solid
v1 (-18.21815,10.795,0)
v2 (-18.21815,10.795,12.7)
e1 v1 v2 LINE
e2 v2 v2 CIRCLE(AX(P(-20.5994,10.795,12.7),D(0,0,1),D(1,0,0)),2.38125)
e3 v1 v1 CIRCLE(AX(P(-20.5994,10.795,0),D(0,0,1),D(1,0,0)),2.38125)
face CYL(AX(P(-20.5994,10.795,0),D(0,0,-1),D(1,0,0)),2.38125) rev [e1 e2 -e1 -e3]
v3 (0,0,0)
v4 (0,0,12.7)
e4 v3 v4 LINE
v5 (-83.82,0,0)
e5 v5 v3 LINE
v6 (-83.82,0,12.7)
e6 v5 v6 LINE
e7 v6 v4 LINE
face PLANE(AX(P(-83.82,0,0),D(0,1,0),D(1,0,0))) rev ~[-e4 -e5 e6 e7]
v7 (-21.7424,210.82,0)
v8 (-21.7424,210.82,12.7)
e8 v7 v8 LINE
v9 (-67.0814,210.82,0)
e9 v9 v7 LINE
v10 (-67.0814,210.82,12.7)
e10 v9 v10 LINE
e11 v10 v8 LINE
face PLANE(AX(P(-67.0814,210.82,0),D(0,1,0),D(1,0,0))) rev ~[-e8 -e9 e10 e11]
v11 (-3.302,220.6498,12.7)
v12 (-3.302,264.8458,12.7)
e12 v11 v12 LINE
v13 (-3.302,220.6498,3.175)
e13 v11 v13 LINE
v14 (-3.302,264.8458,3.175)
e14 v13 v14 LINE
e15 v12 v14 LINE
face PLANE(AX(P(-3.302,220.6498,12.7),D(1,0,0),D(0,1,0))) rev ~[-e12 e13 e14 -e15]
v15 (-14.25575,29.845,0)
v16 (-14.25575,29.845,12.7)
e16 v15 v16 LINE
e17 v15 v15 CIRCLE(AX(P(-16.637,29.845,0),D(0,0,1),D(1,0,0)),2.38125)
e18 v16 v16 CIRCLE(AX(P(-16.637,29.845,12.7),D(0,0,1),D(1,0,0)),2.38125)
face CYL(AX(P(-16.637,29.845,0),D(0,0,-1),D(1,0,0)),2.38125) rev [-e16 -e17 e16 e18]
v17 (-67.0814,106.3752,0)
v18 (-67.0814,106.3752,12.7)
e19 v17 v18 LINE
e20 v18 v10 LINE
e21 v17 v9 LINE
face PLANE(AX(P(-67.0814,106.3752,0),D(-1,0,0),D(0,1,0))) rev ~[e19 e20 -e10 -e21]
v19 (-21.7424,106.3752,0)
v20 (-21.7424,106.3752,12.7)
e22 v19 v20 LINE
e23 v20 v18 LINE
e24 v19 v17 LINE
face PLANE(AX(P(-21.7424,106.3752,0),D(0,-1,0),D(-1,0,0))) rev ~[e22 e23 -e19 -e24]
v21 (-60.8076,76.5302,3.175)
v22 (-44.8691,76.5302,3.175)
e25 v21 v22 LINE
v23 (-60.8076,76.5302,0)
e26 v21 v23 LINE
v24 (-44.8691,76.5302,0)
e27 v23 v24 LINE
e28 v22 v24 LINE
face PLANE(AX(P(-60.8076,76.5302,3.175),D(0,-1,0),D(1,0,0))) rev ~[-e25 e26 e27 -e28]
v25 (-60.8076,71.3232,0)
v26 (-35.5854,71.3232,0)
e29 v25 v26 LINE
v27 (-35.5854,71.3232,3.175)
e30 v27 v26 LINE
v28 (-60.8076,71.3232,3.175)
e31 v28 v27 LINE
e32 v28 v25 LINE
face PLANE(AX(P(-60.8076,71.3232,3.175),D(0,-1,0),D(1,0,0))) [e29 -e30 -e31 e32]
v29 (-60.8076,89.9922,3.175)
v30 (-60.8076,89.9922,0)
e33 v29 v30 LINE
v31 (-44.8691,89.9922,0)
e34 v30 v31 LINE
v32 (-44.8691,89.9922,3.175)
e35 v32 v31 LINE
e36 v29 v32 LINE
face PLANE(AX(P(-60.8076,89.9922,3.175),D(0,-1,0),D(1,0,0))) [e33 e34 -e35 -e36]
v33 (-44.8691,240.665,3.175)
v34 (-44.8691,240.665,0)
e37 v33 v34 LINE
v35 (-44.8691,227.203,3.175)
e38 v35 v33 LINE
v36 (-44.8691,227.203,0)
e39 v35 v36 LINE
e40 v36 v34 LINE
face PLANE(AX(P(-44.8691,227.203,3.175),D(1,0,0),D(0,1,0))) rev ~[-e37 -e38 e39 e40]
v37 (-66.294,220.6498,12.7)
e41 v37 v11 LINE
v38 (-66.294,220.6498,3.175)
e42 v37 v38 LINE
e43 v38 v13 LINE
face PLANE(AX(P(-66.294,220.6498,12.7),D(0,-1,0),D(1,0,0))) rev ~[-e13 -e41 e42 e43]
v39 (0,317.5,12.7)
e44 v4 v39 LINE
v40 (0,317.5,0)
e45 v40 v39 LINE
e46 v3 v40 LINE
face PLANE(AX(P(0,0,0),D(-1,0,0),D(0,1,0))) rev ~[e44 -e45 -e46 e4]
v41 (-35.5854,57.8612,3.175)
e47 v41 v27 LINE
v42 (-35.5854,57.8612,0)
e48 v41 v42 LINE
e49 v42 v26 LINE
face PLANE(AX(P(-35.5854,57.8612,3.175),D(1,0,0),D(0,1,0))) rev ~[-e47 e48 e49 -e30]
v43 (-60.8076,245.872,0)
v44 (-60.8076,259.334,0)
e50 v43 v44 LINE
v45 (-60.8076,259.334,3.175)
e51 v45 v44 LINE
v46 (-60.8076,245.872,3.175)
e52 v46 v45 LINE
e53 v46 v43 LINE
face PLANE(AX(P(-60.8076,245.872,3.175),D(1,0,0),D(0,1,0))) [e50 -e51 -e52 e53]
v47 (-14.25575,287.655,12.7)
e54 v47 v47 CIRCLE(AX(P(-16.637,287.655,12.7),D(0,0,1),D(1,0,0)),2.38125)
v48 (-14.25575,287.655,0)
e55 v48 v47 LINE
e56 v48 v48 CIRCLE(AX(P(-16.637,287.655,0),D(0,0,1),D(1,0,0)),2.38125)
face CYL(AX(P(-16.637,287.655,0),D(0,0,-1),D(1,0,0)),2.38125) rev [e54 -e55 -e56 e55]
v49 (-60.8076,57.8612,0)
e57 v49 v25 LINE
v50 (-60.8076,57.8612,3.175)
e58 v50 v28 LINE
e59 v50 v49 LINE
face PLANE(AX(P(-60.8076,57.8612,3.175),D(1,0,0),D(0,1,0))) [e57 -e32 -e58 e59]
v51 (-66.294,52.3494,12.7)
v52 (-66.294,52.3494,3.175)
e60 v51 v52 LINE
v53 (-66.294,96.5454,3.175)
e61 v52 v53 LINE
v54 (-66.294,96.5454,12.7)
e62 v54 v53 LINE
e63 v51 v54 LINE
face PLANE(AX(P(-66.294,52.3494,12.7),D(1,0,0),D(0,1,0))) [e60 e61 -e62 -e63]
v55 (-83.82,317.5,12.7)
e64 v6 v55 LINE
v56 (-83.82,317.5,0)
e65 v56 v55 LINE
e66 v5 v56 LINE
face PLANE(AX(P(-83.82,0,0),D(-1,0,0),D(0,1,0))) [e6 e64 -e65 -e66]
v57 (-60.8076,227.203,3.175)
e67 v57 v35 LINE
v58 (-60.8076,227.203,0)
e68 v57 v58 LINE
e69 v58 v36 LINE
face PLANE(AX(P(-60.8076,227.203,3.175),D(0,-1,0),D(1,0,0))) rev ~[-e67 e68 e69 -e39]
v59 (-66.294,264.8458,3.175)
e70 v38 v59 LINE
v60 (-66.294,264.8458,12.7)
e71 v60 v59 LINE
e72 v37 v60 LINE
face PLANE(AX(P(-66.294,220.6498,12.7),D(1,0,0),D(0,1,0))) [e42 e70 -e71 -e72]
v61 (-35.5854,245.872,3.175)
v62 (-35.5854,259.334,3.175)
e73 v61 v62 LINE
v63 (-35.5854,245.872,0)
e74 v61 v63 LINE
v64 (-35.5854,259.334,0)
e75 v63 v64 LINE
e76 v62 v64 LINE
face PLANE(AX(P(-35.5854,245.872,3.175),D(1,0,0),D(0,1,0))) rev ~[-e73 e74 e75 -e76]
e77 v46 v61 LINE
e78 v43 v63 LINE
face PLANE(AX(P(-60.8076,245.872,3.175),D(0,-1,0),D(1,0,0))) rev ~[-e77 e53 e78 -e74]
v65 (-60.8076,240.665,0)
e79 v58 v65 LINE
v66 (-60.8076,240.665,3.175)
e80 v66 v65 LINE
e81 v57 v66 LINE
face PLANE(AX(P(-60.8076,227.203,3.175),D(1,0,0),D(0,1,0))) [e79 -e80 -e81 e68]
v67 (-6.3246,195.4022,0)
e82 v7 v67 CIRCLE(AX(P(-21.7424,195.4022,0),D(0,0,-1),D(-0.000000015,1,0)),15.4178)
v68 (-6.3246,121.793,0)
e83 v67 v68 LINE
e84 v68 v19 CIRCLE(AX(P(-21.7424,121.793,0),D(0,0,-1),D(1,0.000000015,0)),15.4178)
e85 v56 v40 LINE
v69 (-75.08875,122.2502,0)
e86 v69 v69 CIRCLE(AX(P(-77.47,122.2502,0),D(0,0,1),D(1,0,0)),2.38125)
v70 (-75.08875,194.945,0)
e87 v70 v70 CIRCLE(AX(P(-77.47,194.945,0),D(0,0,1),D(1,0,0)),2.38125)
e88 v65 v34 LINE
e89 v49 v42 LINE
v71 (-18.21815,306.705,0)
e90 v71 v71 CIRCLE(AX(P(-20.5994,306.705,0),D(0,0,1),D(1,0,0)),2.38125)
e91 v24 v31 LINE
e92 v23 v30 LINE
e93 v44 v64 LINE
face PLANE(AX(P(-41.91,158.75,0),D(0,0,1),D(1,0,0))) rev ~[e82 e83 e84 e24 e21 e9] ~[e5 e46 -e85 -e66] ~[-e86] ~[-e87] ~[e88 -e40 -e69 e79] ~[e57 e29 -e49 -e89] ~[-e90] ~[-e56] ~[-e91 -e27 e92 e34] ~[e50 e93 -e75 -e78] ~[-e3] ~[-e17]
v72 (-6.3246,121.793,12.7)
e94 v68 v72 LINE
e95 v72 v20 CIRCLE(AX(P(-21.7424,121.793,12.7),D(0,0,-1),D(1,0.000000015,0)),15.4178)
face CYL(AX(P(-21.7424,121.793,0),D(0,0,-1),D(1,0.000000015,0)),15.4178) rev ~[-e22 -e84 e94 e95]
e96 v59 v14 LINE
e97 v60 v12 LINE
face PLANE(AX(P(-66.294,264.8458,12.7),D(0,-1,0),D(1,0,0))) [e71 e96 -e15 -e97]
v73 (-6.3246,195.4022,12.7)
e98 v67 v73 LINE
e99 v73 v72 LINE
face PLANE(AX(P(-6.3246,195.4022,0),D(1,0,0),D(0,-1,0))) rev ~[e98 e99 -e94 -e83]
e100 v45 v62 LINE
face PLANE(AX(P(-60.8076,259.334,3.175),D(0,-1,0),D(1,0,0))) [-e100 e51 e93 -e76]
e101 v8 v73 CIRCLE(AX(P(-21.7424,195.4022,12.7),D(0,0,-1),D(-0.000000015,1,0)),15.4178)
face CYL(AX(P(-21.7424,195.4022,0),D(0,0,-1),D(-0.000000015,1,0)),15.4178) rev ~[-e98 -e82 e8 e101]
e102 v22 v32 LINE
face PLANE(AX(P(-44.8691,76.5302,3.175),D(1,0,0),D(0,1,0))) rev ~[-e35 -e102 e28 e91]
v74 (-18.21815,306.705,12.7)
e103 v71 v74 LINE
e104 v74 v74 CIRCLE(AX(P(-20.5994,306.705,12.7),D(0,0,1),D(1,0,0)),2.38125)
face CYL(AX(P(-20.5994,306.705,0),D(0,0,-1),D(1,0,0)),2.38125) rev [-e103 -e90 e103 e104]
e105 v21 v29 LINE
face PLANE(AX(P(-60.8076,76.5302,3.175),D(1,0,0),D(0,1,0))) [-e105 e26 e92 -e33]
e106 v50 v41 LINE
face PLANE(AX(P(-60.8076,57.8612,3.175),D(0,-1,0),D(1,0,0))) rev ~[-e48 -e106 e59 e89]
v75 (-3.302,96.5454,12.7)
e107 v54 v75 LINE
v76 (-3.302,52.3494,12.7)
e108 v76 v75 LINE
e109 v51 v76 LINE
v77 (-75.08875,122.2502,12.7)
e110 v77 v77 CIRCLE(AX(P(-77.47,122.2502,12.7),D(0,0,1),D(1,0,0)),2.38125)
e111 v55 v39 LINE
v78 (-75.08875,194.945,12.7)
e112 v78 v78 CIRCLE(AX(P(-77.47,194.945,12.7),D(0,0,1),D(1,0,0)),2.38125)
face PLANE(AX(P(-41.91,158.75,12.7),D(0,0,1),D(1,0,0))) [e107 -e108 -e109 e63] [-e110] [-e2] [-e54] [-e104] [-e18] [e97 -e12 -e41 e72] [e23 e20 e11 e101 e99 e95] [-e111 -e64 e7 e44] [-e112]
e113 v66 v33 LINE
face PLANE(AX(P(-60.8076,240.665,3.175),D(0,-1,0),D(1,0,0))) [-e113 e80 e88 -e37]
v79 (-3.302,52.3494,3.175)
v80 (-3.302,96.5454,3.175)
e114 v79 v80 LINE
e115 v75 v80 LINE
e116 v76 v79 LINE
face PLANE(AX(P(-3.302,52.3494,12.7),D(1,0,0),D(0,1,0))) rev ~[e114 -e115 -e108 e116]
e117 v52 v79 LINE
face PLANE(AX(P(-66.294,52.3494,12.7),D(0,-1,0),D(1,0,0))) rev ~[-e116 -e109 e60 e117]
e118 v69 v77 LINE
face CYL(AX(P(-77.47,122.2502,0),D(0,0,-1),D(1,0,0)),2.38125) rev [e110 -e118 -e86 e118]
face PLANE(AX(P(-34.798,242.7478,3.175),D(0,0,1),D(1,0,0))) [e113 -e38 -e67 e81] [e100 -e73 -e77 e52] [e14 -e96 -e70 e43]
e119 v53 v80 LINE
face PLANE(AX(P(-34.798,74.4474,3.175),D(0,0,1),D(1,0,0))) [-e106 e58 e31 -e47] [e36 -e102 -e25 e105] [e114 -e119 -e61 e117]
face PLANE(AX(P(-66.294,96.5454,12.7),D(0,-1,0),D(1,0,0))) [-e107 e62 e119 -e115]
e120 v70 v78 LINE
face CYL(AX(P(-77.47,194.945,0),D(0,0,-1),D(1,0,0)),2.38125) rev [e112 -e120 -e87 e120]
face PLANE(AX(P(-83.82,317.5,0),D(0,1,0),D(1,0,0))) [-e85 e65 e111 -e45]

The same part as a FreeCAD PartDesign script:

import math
import FreeCAD as App
import Part
import Sketcher
Q = App.Units.Quantity


def add_polygon(sketch, points):
    """Adds a closed chain of lines whose ends are joined by coincident constraints."""
    first, n = sketch.GeometryCount, len(points)
    for a, b in zip(points, points[1:] + points[:1]):
        sketch.addGeometry(Part.LineSegment(App.Vector(*a, 0), App.Vector(*b, 0)), False)
    for i in range(n):
        sketch.addConstraint(Sketcher.Constraint("Coincident", first + i, 2, first + (i + 1) % n, 1))

doc = App.newDocument("Part")
params = doc.addObject("Spreadsheet::Sheet", "Params")
for row, (alias, value) in enumerate([
    ("sketch1_diameter", "0.1875 in"),
    ("sketch1_width", "3.3 in"),
    ("sketch1_height", "12.5 in"),
    ("sketch1_radius", "0.607 in"),
    ("sketch1_width2", "1.785 in"),
    ("pad1_length", "0.5 in"),
    ("sketch2_width", "2.48 in"),
    ("sketch2_height", "1.74 in"),
    ("pocket1_length", "0.375 in"),
    ("sketch3_height", "0.53 in"),
    ("sketch3_width", "0.993 in"),
], start=1):
    params.set(f"A{row}", alias)
    params.set(f"B{row}", "=" + value)
    params.setAlias(f"B{row}", alias)

body = doc.addObject("PartDesign::Body", "Body")

sketch1 = body.newObject("Sketcher::SketchObject", "Sketch")
sketch1.AttachmentSupport = (doc.getObject("XY_Plane"), [""])
sketch1.MapMode = "FlatFace"
add_polygon(sketch1, [(-83.82, 317.5), (-83.82, 0), (0, 0), (0, 317.5)])
sketch1.addGeometry(Part.Circle(App.Vector(-77.47, 122.2502, 0), App.Vector(0, 0, 1), 2.38125), False)
sketch1.addGeometry(Part.Circle(App.Vector(-20.5994, 10.795, 0), App.Vector(0, 0, 1), 2.38125), False)
sketch1.addGeometry(Part.Circle(App.Vector(-16.637, 29.845, 0), App.Vector(0, 0, 1), 2.38125), False)
sketch1.addGeometry(Part.LineSegment(App.Vector(-6.3246, 195.4022, 0), App.Vector(-6.3246, 121.793, 0)), False)
sketch1.addGeometry(Part.ArcOfCircle(Part.Circle(App.Vector(-21.7424, 121.793, 0), App.Vector(0, 0, 1), 15.4178), math.radians(-90.000001), math.radians(0.000001)), False)
sketch1.addGeometry(Part.LineSegment(App.Vector(-21.7424, 106.3752, 0), App.Vector(-67.0814, 106.3752, 0)), False)
sketch1.addGeometry(Part.LineSegment(App.Vector(-67.0814, 106.3752, 0), App.Vector(-67.0814, 210.82, 0)), False)
sketch1.addGeometry(Part.LineSegment(App.Vector(-67.0814, 210.82, 0), App.Vector(-21.7424, 210.82, 0)), False)
sketch1.addGeometry(Part.ArcOfCircle(Part.Circle(App.Vector(-21.7424, 195.4022, 0), App.Vector(0, 0, 1), 15.4178), math.radians(-0.000001), math.radians(90.000001)), False)
sketch1.addGeometry(Part.Circle(App.Vector(-77.47, 194.945, 0), App.Vector(0, 0, 1), 2.38125), False)
sketch1.addGeometry(Part.Circle(App.Vector(-16.637, 287.655, 0), App.Vector(0, 0, 1), 2.38125), False)
sketch1.addGeometry(Part.Circle(App.Vector(-20.5994, 306.705, 0), App.Vector(0, 0, 1), 2.38125), False)
sketch1.addConstraint([
    Sketcher.Constraint("Tangent", 7, 2, 8, 2),
    Sketcher.Constraint("Tangent", 8, 1, 9, 1),
    Sketcher.Constraint("Coincident", 9, 2, 10, 1),
    Sketcher.Constraint("Coincident", 10, 2, 11, 1),
    Sketcher.Constraint("Tangent", 11, 2, 12, 2),
    Sketcher.Constraint("Tangent", 12, 1, 7, 1),
    Sketcher.Constraint("Vertical", 0),
    Sketcher.Constraint("Horizontal", 1),
    Sketcher.Constraint("Vertical", 2),
    Sketcher.Constraint("Horizontal", 3),
    Sketcher.Constraint("Vertical", 7),
    Sketcher.Constraint("Horizontal", 9),
    Sketcher.Constraint("Vertical", 10),
    Sketcher.Constraint("Horizontal", 11),
    Sketcher.Constraint("Coincident", 1, 2, -1, 1),
    Sketcher.Constraint("Equal", 4, 5),
    Sketcher.Constraint("Equal", 5, 6),
    Sketcher.Constraint("Equal", 8, 12),
    Sketcher.Constraint("Equal", 6, 13),
    Sketcher.Constraint("Equal", 13, 14),
    Sketcher.Constraint("Equal", 14, 15),
    Sketcher.Constraint("Vertical", 4, 3, 13, 3),
    Sketcher.Constraint("Vertical", 6, 3, 14, 3),
    Sketcher.Constraint("Vertical", 5, 3, 15, 3),
    Sketcher.Constraint("Diameter", 4, Q("0.1875 in")),
    Sketcher.Constraint("DistanceX", 1, 1, 1, 2, Q("3.3 in")),
    Sketcher.Constraint("DistanceY", 0, 2, 0, 1, Q("12.5 in")),
    Sketcher.Constraint("Radius", 8, Q("0.607 in")),
    Sketcher.Constraint("DistanceY", -1, 1, 10, 2, Q("8.3 in")),
    Sketcher.Constraint("DistanceY", 6, 3, 13, 3, Q("6.5 in")),
    Sketcher.Constraint("DistanceY", 13, 3, 15, 3, Q("4.4 in")),
    Sketcher.Constraint("DistanceX", 9, 2, 9, 1, Q("1.785 in")),
    Sketcher.Constraint("DistanceY", 7, 2, 7, 1, Q("2.898 in")),
    Sketcher.Constraint("DistanceX", 4, 3, -1, 1, Q("3.05 in")),
    Sketcher.Constraint("DistanceY", 5, 3, 6, 3, Q("0.75 in")),
    Sketcher.Constraint("DistanceY", 6, 3, 8, 3, Q("3.62 in")),
    Sketcher.Constraint("DistanceY", 4, 3, 12, 3, Q("2.88 in")),
    Sketcher.Constraint("DistanceY", 13, 3, 14, 3, Q("3.65 in")),
    Sketcher.Constraint("DistanceX", 5, 3, -1, 1, Q("0.811 in")),
    Sketcher.Constraint("DistanceX", 6, 3, -1, 1, Q("0.655 in")),
    Sketcher.Constraint("DistanceX", 8, 3, -1, 1, Q("0.856 in")),
])
sketch1.setExpression("Constraints[28]", "Params.sketch1_diameter")
sketch1.setExpression("Constraints[29]", "Params.sketch1_width")
sketch1.setExpression("Constraints[30]", "Params.sketch1_height")
sketch1.setExpression("Constraints[31]", "Params.sketch1_radius")
sketch1.setExpression("Constraints[35]", "Params.sketch1_width2")
pad1 = body.newObject("PartDesign::Pad", "Pad")
pad1.Profile = sketch1
pad1.setExpression("Length", "Params.pad1_length")

sketch2 = body.newObject("Sketcher::SketchObject", "Sketch001")
sketch2.AttachmentSupport = (doc.getObject("XY_Plane"), [""])
sketch2.MapMode = "FlatFace"
sketch2.AttachmentOffset = App.Placement(App.Vector(0, 0, 0.5 * 25.4), App.Rotation())
add_polygon(sketch2, [(-66.294, 96.5454), (-66.294, 52.3494), (-3.302, 52.3494), (-3.302, 96.5454)])
add_polygon(sketch2, [(-66.294, 264.8458), (-66.294, 220.6498), (-3.302, 220.6498), (-3.302, 264.8458)])
sketch2.addConstraint([
    Sketcher.Constraint("Vertical", 0),
    Sketcher.Constraint("Horizontal", 1),
    Sketcher.Constraint("Vertical", 2),
    Sketcher.Constraint("Horizontal", 3),
    Sketcher.Constraint("Vertical", 4),
    Sketcher.Constraint("Horizontal", 5),
    Sketcher.Constraint("Vertical", 6),
    Sketcher.Constraint("Horizontal", 7),
    Sketcher.Constraint("Vertical", 3, 2, 4, 2),
    Sketcher.Constraint("Vertical", 2, 2, 5, 2),
    Sketcher.Constraint("Equal", 2, 4),
    Sketcher.Constraint("DistanceX", 1, 1, 1, 2, Q("2.48 in")),
    Sketcher.Constraint("DistanceY", 0, 2, 0, 1, Q("1.74 in")),
    Sketcher.Constraint("DistanceX", 0, 2, -1, 1, Q("2.61 in")),
    Sketcher.Constraint("DistanceY", -1, 1, 0, 2, Q("2.061 in")),
    Sketcher.Constraint("DistanceY", -1, 1, 4, 2, Q("8.687 in")),
])
sketch2.setExpression("Constraints[19]", "Params.sketch2_width")
sketch2.setExpression("Constraints[20]", "Params.sketch2_height")
pocket1 = body.newObject("PartDesign::Pocket", "Pocket")
pocket1.Profile = sketch2
pocket1.setExpression("Length", "Params.pocket1_length")

sketch3 = body.newObject("Sketcher::SketchObject", "Sketch002")
sketch3.AttachmentSupport = (doc.getObject("XY_Plane"), [""])
sketch3.MapMode = "FlatFace"
sketch3.AttachmentOffset = App.Placement(App.Vector(0, 0, 0.125 * 25.4), App.Rotation())
add_polygon(sketch3, [(-60.8076, 240.665), (-60.8076, 227.203), (-44.8691, 227.203), (-44.8691, 240.665)])
add_polygon(sketch3, [(-60.8076, 259.334), (-60.8076, 245.872), (-35.5854, 245.872), (-35.5854, 259.334)])
add_polygon(sketch3, [(-60.8076, 89.9922), (-60.8076, 76.5302), (-44.8691, 76.5302), (-44.8691, 89.9922)])
add_polygon(sketch3, [(-60.8076, 71.3232), (-60.8076, 57.8612), (-35.5854, 57.8612), (-35.5854, 71.3232)])
sketch3.addConstraint([
    Sketcher.Constraint("Vertical", 0),
    Sketcher.Constraint("Horizontal", 1),
    Sketcher.Constraint("Vertical", 2),
    Sketcher.Constraint("Horizontal", 3),
    Sketcher.Constraint("Vertical", 4),
    Sketcher.Constraint("Horizontal", 5),
    Sketcher.Constraint("Vertical", 6),
    Sketcher.Constraint("Horizontal", 7),
    Sketcher.Constraint("Vertical", 8),
    Sketcher.Constraint("Horizontal", 9),
    Sketcher.Constraint("Vertical", 10),
    Sketcher.Constraint("Horizontal", 11),
    Sketcher.Constraint("Vertical", 12),
    Sketcher.Constraint("Horizontal", 13),
    Sketcher.Constraint("Vertical", 14),
    Sketcher.Constraint("Horizontal", 15),
    Sketcher.Constraint("Vertical", 3, 2, 4, 2),
    Sketcher.Constraint("Vertical", 7, 2, 8, 2),
    Sketcher.Constraint("Vertical", 2, 2, 9, 2),
    Sketcher.Constraint("Vertical", 11, 2, 12, 2),
    Sketcher.Constraint("Vertical", 6, 2, 13, 2),
    Sketcher.Constraint("Equal", 2, 4),
    Sketcher.Constraint("Equal", 6, 8),
    Sketcher.Constraint("Equal", 10, 12),
    Sketcher.Constraint("DistanceY", 0, 2, 0, 1, Q("0.53 in")),
    Sketcher.Constraint("DistanceX", 5, 1, 5, 2, Q("0.993 in")),
    Sketcher.Constraint("DistanceY", -1, 1, 4, 2, Q("9.68 in")),
    Sketcher.Constraint("DistanceX", 1, 1, 1, 2, Q("0.6275 in")),
    Sketcher.Constraint("DistanceX", 0, 2, -1, 1, Q("2.394 in")),
    Sketcher.Constraint("DistanceY", -1, 1, 0, 2, Q("8.945 in")),
    Sketcher.Constraint("DistanceY", -1, 1, 8, 2, Q("3.013 in")),
    Sketcher.Constraint("DistanceY", -1, 1, 12, 2, Q("2.278 in")),
])
sketch3.setExpression("Constraints[40]", "Params.sketch3_height")
sketch3.setExpression("Constraints[41]", "Params.sketch3_width")
pocket2 = body.newObject("PartDesign::Pocket", "Pocket001")
pocket2.Profile = sketch3
pocket2.Type = "ThroughAll"

doc.recompute()
